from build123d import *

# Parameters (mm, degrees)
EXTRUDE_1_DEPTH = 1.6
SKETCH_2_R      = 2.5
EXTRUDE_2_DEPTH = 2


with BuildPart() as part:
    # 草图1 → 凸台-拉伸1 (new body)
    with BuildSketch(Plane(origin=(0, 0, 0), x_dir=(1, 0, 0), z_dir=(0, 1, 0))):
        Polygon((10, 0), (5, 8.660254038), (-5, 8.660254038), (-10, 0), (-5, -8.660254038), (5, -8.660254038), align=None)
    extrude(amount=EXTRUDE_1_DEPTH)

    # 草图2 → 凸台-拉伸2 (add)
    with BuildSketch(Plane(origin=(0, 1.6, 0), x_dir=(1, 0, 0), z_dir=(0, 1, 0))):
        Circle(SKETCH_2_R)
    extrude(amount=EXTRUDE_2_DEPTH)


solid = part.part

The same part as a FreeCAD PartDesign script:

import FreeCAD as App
import Part
import Sketcher
Q = App.Units.Quantity

doc = App.newDocument("Part")
body = doc.addObject("PartDesign::Body", "Body")

# Sketch on XZ plane
sketch1 = body.newObject("Sketcher::SketchObject", "Sketch")
sketch1.AttachmentSupport = (doc.getObject("XZ_Plane"), [""])
sketch1.MapMode = "FlatFace"
sketch1.addGeometry(Part.LineSegment(App.Vector(10, 0, 0), App.Vector(5, -9, 0)), False)
sketch1.addGeometry(Part.LineSegment(App.Vector(5, -9, 0), App.Vector(-5, -9, 0)), False)
sketch1.addGeometry(Part.LineSegment(App.Vector(-5, -9, 0), App.Vector(-10, 0, 0)), False)
sketch1.addGeometry(Part.LineSegment(App.Vector(-10, 0, 0), App.Vector(-5, 9, 0)), False)
sketch1.addGeometry(Part.LineSegment(App.Vector(-5, 9, 0), App.Vector(5, 9, 0)), False)
sketch1.addGeometry(Part.LineSegment(App.Vector(5, 9, 0), App.Vector(10, 0, 0)), False)
sketch1.addConstraint(Sketcher.Constraint("Coincident", 0, 2, 1, 1))
sketch1.addConstraint(Sketcher.Constraint("Coincident", 1, 2, 2, 1))
sketch1.addConstraint(Sketcher.Constraint("Coincident", 2, 2, 3, 1))
sketch1.addConstraint(Sketcher.Constraint("Coincident", 3, 2, 4, 1))
sketch1.addConstraint(Sketcher.Constraint("Coincident", 4, 2, 5, 1))
sketch1.addConstraint(Sketcher.Constraint("Coincident", 5, 2, 0, 1))
sketch1.addConstraint(Sketcher.Constraint("Horizontal", 1))
sketch1.addConstraint(Sketcher.Constraint("Horizontal", 4))
sketch1.addConstraint(Sketcher.Constraint("Symmetric", 0, 2, 3, 2, -1, 1))
sketch1.addConstraint(Sketcher.Constraint("Symmetric", 2, 2, 5, 2, -1, 1))
sketch1.addConstraint(Sketcher.Constraint("PointOnObject", 2, 2, -1))
sketch1.addConstraint(Sketcher.Constraint("Parallel", 2, 5))
sketch1.addConstraint(Sketcher.Constraint("Vertical", 1, 2, 3, 2))
sketch1.addConstraint(Sketcher.Constraint("DistanceX", 1, 2, 1, 1, Q("10 mm")))
sketch1.addConstraint(Sketcher.Constraint("Angle", 0, Q("-120 deg")))
sketch1.addConstraint(Sketcher.Constraint("Distance", 0, Q("10 mm")))
pad1 = body.newObject("PartDesign::Pad", "Pad")
pad1.Profile = sketch1
pad1.Length = 1.6
pad1.Reversed = True

# Sketch on XZ plane
sketch2 = body.newObject("Sketcher::SketchObject", "Sketch001")
sketch2.AttachmentSupport = (doc.getObject("XZ_Plane"), [""])
sketch2.MapMode = "FlatFace"
sketch2.AttachmentOffset = App.Placement(App.Vector(0, 0, -1.6), App.Rotation())
sketch2.addGeometry(Part.Circle(App.Vector(0, 0, 0), App.Vector(0, 0, 1), 2.5), False)
sketch2.addConstraint(Sketcher.Constraint("Coincident", 0, 3, -1, 1))
sketch2.addConstraint(Sketcher.Constraint("Diameter", 0, Q("5 mm")))
pad2 = body.newObject("PartDesign::Pad", "Pad001")
pad2.Profile = sketch2
pad2.Length = 2
pad2.Reversed = True

doc.recompute()
